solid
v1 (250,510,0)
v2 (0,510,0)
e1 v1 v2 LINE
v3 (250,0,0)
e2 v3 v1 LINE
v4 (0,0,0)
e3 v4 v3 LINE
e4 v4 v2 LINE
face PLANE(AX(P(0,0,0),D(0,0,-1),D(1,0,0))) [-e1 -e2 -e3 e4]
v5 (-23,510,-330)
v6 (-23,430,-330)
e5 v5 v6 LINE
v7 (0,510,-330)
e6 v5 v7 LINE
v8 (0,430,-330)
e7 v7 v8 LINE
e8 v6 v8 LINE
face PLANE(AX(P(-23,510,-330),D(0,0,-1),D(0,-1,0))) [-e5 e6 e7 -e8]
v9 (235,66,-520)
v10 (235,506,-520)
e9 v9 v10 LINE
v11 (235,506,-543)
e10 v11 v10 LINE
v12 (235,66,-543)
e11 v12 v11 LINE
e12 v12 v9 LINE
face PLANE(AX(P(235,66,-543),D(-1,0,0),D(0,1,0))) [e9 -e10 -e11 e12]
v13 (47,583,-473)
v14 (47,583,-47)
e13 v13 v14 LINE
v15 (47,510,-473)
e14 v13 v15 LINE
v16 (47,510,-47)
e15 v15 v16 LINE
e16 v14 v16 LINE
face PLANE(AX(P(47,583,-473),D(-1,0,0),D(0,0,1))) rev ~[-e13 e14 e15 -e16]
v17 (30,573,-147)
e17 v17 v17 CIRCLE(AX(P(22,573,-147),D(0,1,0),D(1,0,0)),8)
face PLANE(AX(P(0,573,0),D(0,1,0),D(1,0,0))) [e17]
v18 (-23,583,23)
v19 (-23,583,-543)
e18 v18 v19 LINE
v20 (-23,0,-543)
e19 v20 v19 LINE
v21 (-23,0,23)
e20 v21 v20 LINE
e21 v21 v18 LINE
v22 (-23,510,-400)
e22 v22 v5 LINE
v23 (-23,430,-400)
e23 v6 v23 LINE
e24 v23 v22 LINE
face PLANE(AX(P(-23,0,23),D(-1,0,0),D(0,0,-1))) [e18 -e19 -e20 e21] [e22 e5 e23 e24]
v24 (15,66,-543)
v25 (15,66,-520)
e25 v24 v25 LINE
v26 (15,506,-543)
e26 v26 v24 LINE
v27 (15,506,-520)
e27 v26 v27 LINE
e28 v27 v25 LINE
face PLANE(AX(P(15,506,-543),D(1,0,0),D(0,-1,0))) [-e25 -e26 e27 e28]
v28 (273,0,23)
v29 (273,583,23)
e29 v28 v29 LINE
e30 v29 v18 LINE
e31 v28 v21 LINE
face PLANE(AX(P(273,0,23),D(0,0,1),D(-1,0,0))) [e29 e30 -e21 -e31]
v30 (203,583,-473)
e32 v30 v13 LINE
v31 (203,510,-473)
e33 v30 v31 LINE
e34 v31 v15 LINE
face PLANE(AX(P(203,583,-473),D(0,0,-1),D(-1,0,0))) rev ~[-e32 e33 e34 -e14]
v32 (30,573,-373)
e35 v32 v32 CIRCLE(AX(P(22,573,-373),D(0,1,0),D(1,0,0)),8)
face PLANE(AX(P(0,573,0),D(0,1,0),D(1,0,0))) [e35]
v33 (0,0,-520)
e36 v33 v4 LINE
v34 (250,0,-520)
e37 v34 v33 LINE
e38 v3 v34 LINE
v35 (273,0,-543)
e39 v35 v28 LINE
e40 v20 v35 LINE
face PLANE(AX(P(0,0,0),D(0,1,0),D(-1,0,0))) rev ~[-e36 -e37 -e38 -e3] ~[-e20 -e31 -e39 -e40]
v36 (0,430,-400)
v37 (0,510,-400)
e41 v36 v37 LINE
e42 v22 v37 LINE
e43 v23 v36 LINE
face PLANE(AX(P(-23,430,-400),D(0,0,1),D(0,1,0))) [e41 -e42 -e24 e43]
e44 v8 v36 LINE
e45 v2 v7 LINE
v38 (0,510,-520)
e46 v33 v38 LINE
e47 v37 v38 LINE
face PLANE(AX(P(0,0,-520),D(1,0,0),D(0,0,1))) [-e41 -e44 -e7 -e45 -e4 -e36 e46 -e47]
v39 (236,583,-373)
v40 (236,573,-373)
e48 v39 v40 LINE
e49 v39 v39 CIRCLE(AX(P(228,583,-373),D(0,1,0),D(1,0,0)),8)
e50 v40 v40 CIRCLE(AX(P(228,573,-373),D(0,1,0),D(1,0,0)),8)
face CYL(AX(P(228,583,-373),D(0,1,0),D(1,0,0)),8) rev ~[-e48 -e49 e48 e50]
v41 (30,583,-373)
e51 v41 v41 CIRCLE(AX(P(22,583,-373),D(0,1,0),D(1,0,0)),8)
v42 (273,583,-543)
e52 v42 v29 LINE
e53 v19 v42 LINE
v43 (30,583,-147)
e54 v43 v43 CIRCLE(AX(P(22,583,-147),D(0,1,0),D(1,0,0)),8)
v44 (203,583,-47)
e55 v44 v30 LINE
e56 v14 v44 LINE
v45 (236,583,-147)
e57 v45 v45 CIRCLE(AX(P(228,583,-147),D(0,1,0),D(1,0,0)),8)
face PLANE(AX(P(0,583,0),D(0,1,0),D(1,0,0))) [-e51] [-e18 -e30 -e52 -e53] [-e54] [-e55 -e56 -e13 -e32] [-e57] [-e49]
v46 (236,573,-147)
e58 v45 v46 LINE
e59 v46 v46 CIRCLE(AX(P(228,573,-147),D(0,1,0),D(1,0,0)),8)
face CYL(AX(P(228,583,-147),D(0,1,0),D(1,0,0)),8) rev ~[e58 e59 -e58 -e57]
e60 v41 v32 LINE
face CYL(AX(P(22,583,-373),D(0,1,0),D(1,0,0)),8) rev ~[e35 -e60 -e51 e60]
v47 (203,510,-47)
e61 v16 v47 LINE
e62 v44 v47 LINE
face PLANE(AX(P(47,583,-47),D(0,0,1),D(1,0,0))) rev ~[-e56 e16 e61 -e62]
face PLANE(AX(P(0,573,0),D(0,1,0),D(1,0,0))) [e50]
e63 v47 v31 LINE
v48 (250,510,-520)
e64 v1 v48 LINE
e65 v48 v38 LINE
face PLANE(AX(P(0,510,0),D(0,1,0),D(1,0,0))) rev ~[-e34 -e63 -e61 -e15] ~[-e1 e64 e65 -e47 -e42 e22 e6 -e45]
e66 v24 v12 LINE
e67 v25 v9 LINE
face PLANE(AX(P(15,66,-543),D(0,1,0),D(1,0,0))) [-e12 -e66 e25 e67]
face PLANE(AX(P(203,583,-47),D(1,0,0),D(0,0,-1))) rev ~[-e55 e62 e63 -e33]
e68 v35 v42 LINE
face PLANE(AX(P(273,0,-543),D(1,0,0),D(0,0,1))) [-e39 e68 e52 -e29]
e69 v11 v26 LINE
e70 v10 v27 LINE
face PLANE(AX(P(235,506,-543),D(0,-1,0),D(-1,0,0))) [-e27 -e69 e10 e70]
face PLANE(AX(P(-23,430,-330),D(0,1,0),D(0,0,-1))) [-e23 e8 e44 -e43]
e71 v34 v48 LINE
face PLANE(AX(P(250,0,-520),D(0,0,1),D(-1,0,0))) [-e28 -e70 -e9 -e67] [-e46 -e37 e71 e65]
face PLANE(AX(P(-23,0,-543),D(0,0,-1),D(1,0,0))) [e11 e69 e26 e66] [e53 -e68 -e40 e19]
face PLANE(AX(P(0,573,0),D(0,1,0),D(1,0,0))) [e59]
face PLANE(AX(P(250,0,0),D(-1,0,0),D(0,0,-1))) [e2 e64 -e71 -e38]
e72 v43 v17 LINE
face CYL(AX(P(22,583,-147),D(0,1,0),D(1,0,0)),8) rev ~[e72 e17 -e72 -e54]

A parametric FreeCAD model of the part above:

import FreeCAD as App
import Part
import Sketcher

V = App.Vector


def add_polygon(sketch, points):
    """Adds a closed chain of lines whose ends are joined by coincident constraints."""
    first, n = sketch.GeometryCount, len(points)
    for a, b in zip(points, points[1:] + points[:1]):
        sketch.addGeometry(Part.LineSegment(App.Vector(*a, 0), App.Vector(*b, 0)), False)
    for i in range(n):
        sketch.addConstraint(Sketcher.Constraint("Coincident", first + i, 2, first + (i + 1) % n, 1))

doc = App.newDocument("Part")
body = doc.addObject("PartDesign::Body", "Body")

sketch1 = body.newObject("Sketcher::SketchObject", "Sketch")
sketch1.AttachmentSupport = (doc.getObject("XZ_Plane"), [""])
sketch1.MapMode = "FlatFace"
add_polygon(sketch1, [(273, -543), (-23, -543), (-23, 23), (273, 23)])
add_polygon(sketch1, [(250, 0), (0, 0), (0, -520), (250, -520)])
sketch1.addConstraint(Sketcher.Constraint("Horizontal", 0))
sketch1.addConstraint(Sketcher.Constraint("Vertical", 1))
sketch1.addConstraint(Sketcher.Constraint("Horizontal", 2))
sketch1.addConstraint(Sketcher.Constraint("Vertical", 3))
sketch1.addConstraint(Sketcher.Constraint("Horizontal", 4))
sketch1.addConstraint(Sketcher.Constraint("Vertical", 5))
sketch1.addConstraint(Sketcher.Constraint("Horizontal", 6))
sketch1.addConstraint(Sketcher.Constraint("Vertical", 7))
sketch1.addConstraint(Sketcher.Constraint("Coincident", 4, 2, -1, 1))
sketch1.addConstraint(Sketcher.Constraint("DistanceX", 4, 2, 4, 1, 250.0))
sketch1.addConstraint(Sketcher.Constraint("DistanceY", 5, 2, 5, 1, 520.0))
sketch1.addConstraint(Sketcher.Constraint("DistanceX", 0, 2, -1, 1, 23.0))
sketch1.addConstraint(Sketcher.Constraint("DistanceY", -1, 1, 1, 2, 23.0))
sketch1.addConstraint(Sketcher.Constraint("DistanceY", 0, 2, 5, 2, 23.0))
sketch1.addConstraint(Sketcher.Constraint("DistanceX", 6, 2, 3, 2, 23.0))
pad1 = body.newObject("PartDesign::Pad", "Pad")
pad1.Profile = sketch1
pad1.Length = 583
pad1.Reversed = True

sketch2 = body.newObject("Sketcher::SketchObject", "Sketch001")
sketch2.AttachmentSupport = (doc.getObject("XY_Plane"), [""])
sketch2.MapMode = "FlatFace"
sketch2.AttachmentOffset = App.Placement(V(0, 0, -543), App.Rotation())
add_polygon(sketch2, [(15, 506), (235, 506), (235, 66), (15, 66)])
sketch2.addConstraint(Sketcher.Constraint("Horizontal", 0))
sketch2.addConstraint(Sketcher.Constraint("Vertical", 1))
sketch2.addConstraint(Sketcher.Constraint("Horizontal", 2))
sketch2.addConstraint(Sketcher.Constraint("Vertical", 3))
sketch2.addConstraint(Sketcher.Constraint("DistanceX", 0, 1, 0, 2, 220.0))
sketch2.addConstraint(Sketcher.Constraint("DistanceY", 1, 2, 1, 1, 440.0))
sketch2.addConstraint(Sketcher.Constraint("DistanceX", -1, 1, 0, 2, 235.0))
sketch2.addConstraint(Sketcher.Constraint("DistanceY", -1, 1, 0, 2, 506.0))
pocket1 = body.newObject("PartDesign::Pocket", "Pocket")
pocket1.Profile = sketch2
pocket1.Length = 23
pocket1.Reversed = True

sketch3 = body.newObject("Sketcher::SketchObject", "Sketch002")
sketch3.AttachmentSupport = (doc.getObject("YZ_Plane"), [""])
sketch3.MapMode = "FlatFace"
sketch3.AttachmentOffset = App.Placement(V(0, 0, -23), App.Rotation())
add_polygon(sketch3, [(510, -330), (510, -400), (430, -400), (430, -330)])
sketch3.addConstraint(Sketcher.Constraint("Vertical", 0))
sketch3.addConstraint(Sketcher.Constraint("Horizontal", 1))
sketch3.addConstraint(Sketcher.Constraint("Vertical", 2))
sketch3.addConstraint(Sketcher.Constraint("Horizontal", 3))
sketch3.addConstraint(Sketcher.Constraint("DistanceX", 1, 2, 1, 1, 80.0))
sketch3.addConstraint(Sketcher.Constraint("DistanceY", 0, 2, 0, 1, 70.0))
sketch3.addConstraint(Sketcher.Constraint("DistanceX", -1, 1, 1, 2, 430.0))
sketch3.addConstraint(Sketcher.Constraint("DistanceY", 0, 2, -1, 1, 400.0))
pocket2 = body.newObject("PartDesign::Pocket", "Pocket001")
pocket2.Profile = sketch3
pocket2.Length = 23
pocket2.Reversed = True

sketch4 = body.newObject("Sketcher::SketchObject", "Sketch003")
sketch4.AttachmentSupport = (doc.getObject("XZ_Plane"), [""])
sketch4.MapMode = "FlatFace"
sketch4.AttachmentOffset = App.Placement(V(0, 0, -583), App.Rotation())
add_polygon(sketch4, [(0, 0), (250, 0), (250, -520), (0, -520)])
add_polygon(sketch4, [(203, -47), (47, -47), (47, -473), (203, -473)])
sketch4.addConstraint(Sketcher.Constraint("Horizontal", 0))
sketch4.addConstraint(Sketcher.Constraint("Vertical", 1))
sketch4.addConstraint(Sketcher.Constraint("Horizontal", 2))
sketch4.addConstraint(Sketcher.Constraint("Vertical", 3))
sketch4.addConstraint(Sketcher.Constraint("Horizontal", 4))
sketch4.addConstraint(Sketcher.Constraint("Vertical", 5))
sketch4.addConstraint(Sketcher.Constraint("Horizontal", 6))
sketch4.addConstraint(Sketcher.Constraint("Vertical", 7))
sketch4.addConstraint(Sketcher.Constraint("Coincident", 3, 2, -1, 1))
sketch4.addConstraint(Sketcher.Constraint("DistanceX", -1, 1, 4, 2, 47.0))
sketch4.addConstraint(Sketcher.Constraint("DistanceY", 4, 2, -1, 1, 47.0))
sketch4.addConstraint(Sketcher.Constraint("DistanceY", 2, 2, 5, 2, 47.0))
sketch4.addConstraint(Sketcher.Constraint("DistanceX", 6, 2, 1, 2, 47.0))
sketch4.addConstraint(Sketcher.Constraint("DistanceX", 0, 1, 0, 2, 250.0))
sketch4.addConstraint(Sketcher.Constraint("DistanceY", 1, 2, 1, 1, 520.0))
pad2 = body.newObject("PartDesign::Pad", "Pad001")
pad2.Profile = sketch4
pad2.Length = 73

sketch5 = body.newObject("Sketcher::SketchObject", "Sketch004")
sketch5.AttachmentSupport = (doc.getObject("XZ_Plane"), [""])
sketch5.MapMode = "FlatFace"
sketch5.AttachmentOffset = App.Placement(V(0, 0, -583), App.Rotation())
sketch5.addGeometry(Part.Circle(V(228, -373, 0), V(0, 0, 1), 8), False)
sketch5.addGeometry(Part.Circle(V(228, -147, 0), V(0, 0, 1), 8), False)
sketch5.addGeometry(Part.Circle(V(22, -373, 0), V(0, 0, 1), 8), False)
sketch5.addGeometry(Part.Circle(V(22, -147, 0), V(0, 0, 1), 8), False)
sketch5.addConstraint(Sketcher.Constraint("Equal", 0, 1))
sketch5.addConstraint(Sketcher.Constraint("Equal", 1, 2))
sketch5.addConstraint(Sketcher.Constraint("Equal", 2, 3))
sketch5.addConstraint(Sketcher.Constraint("Horizontal", 0, 3, 2, 3))
sketch5.addConstraint(Sketcher.Constraint("Horizontal", 1, 3, 3, 3))
sketch5.addConstraint(Sketcher.Constraint("Vertical", 0, 3, 1, 3))
sketch5.addConstraint(Sketcher.Constraint("Vertical", 2, 3, 3, 3))
sketch5.addConstraint(Sketcher.Constraint("Diameter", 0, 16.0))
sketch5.addConstraint(Sketcher.Constraint("DistanceX", -1, 1, 0, 3, 228.0))
sketch5.addConstraint(Sketcher.Constraint("DistanceY", 0, 3, -1, 1, 373.0))
sketch5.addConstraint(Sketcher.Constraint("DistanceY", 1, 3, -1, 1, 147.0))
sketch5.addConstraint(Sketcher.Constraint("DistanceX", -1, 1, 2, 3, 22.0))
pocket3 = body.newObject("PartDesign::Pocket", "Pocket002")
pocket3.Profile = sketch5
pocket3.Length = 10
pocket3.Reversed = True

doc.recompute()
